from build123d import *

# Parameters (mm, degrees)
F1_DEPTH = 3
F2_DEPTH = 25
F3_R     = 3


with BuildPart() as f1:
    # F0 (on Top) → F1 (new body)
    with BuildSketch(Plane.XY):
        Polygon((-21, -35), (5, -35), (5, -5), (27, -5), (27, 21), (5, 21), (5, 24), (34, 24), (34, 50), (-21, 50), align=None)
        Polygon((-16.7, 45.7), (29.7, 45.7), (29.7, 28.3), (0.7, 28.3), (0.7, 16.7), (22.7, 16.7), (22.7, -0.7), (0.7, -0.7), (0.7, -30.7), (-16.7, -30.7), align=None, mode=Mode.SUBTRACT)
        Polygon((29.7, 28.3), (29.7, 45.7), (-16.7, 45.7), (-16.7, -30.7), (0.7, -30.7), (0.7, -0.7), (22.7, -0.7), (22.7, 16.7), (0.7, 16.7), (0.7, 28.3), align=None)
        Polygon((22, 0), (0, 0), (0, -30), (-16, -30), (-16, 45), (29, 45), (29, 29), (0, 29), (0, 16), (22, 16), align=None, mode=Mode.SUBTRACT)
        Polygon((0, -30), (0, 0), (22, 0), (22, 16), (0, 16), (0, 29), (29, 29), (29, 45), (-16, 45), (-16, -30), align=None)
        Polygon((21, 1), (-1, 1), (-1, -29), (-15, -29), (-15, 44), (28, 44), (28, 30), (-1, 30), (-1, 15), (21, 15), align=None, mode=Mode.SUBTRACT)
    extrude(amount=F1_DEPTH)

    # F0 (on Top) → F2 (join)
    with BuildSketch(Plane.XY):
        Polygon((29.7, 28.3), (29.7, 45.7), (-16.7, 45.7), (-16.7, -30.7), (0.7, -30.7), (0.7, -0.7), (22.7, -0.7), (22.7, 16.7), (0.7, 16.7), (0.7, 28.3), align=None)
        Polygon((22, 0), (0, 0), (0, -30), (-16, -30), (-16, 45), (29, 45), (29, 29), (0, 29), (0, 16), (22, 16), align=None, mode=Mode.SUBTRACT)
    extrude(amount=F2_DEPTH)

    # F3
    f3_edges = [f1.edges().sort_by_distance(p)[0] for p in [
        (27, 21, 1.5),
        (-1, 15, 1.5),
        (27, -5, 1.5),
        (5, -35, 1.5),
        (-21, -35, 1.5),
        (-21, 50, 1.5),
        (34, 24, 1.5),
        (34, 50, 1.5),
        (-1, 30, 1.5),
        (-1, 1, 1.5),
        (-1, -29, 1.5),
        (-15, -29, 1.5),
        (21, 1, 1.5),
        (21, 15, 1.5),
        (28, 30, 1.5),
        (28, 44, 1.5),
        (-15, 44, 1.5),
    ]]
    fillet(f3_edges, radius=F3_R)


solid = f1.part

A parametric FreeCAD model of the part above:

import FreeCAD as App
import Part
import Sketcher

V = App.Vector


def edges_at(feature, points):
    """Names of the edges that pass closest to the given points."""
    edges = feature.Shape.Edges
    near = lambda p: min(range(len(edges)), key=lambda i: edges[i].distToShape(Part.Vertex(*p))[0])
    return sorted({f"Edge{near(p) + 1}" for p in points})

doc = App.newDocument("Part")
body = doc.addObject("PartDesign::Body", "Body")

sketch1 = body.newObject("Sketcher::SketchObject", "Sketch")
sketch1.AttachmentSupport = (doc.getObject("XY_Plane"), [""])
sketch1.MapMode = "FlatFace"
sketch1.addGeometry(Part.LineSegment(V(-21, -35, 0), V(5, -35, 0)), False)
sketch1.addGeometry(Part.LineSegment(V(5, -35, 0), V(5, -5, 0)), False)
sketch1.addGeometry(Part.LineSegment(V(5, -5, 0), V(27, -5, 0)), False)
sketch1.addGeometry(Part.LineSegment(V(27, -5, 0), V(27, 21, 0)), False)
sketch1.addGeometry(Part.LineSegment(V(27, 21, 0), V(5, 21, 0)), False)
sketch1.addGeometry(Part.LineSegment(V(5, 21, 0), V(5, 24, 0)), False)
sketch1.addGeometry(Part.LineSegment(V(5, 24, 0), V(34, 24, 0)), False)
sketch1.addGeometry(Part.LineSegment(V(34, 24, 0), V(34, 50, 0)), False)
sketch1.addGeometry(Part.LineSegment(V(34, 50, 0), V(-21, 50, 0)), False)
sketch1.addGeometry(Part.LineSegment(V(-21, 50, 0), V(-21, -35, 0)), False)
sketch1.addGeometry(Part.LineSegment(V(21, 15, 0), V(21, 1, 0)), False)
sketch1.addGeometry(Part.LineSegment(V(21, 1, 0), V(-1, 1, 0)), False)
sketch1.addGeometry(Part.LineSegment(V(-1, 1, 0), V(-1, -29, 0)), False)
sketch1.addGeometry(Part.LineSegment(V(-1, -29, 0), V(-15, -29, 0)), False)
sketch1.addGeometry(Part.LineSegment(V(-15, -29, 0), V(-15, 44, 0)), False)
sketch1.addGeometry(Part.LineSegment(V(-15, 44, 0), V(28, 44, 0)), False)
sketch1.addGeometry(Part.LineSegment(V(28, 44, 0), V(28, 30, 0)), False)
sketch1.addGeometry(Part.LineSegment(V(28, 30, 0), V(-1, 30, 0)), False)
sketch1.addGeometry(Part.LineSegment(V(-1, 30, 0), V(-1, 15, 0)), False)
sketch1.addGeometry(Part.LineSegment(V(-1, 15, 0), V(21, 15, 0)), False)
sketch1.addConstraint(Sketcher.Constraint("Coincident", 0, 2, 1, 1))
sketch1.addConstraint(Sketcher.Constraint("Coincident", 1, 2, 2, 1))
sketch1.addConstraint(Sketcher.Constraint("Coincident", 2, 2, 3, 1))
sketch1.addConstraint(Sketcher.Constraint("Coincident", 3, 2, 4, 1))
sketch1.addConstraint(Sketcher.Constraint("Coincident", 4, 2, 5, 1))
sketch1.addConstraint(Sketcher.Constraint("Coincident", 5, 2, 6, 1))
sketch1.addConstraint(Sketcher.Constraint("Coincident", 6, 2, 7, 1))
sketch1.addConstraint(Sketcher.Constraint("Coincident", 7, 2, 8, 1))
sketch1.addConstraint(Sketcher.Constraint("Coincident", 8, 2, 9, 1))
sketch1.addConstraint(Sketcher.Constraint("Coincident", 9, 2, 0, 1))
sketch1.addConstraint(Sketcher.Constraint("Coincident", 10, 2, 11, 1))
sketch1.addConstraint(Sketcher.Constraint("Coincident", 11, 2, 12, 1))
sketch1.addConstraint(Sketcher.Constraint("Coincident", 12, 2, 13, 1))
sketch1.addConstraint(Sketcher.Constraint("Coincident", 13, 2, 14, 1))
sketch1.addConstraint(Sketcher.Constraint("Coincident", 14, 2, 15, 1))
sketch1.addConstraint(Sketcher.Constraint("Coincident", 15, 2, 16, 1))
sketch1.addConstraint(Sketcher.Constraint("Coincident", 16, 2, 17, 1))
sketch1.addConstraint(Sketcher.Constraint("Coincident", 17, 2, 18, 1))
sketch1.addConstraint(Sketcher.Constraint("Coincident", 18, 2, 19, 1))
sketch1.addConstraint(Sketcher.Constraint("Coincident", 19, 2, 10, 1))
sketch1.addConstraint(Sketcher.Constraint("Horizontal", 0))
sketch1.addConstraint(Sketcher.Constraint("Vertical", 1))
sketch1.addConstraint(Sketcher.Constraint("Horizontal", 2))
sketch1.addConstraint(Sketcher.Constraint("Vertical", 3))
sketch1.addConstraint(Sketcher.Constraint("Horizontal", 4))
sketch1.addConstraint(Sketcher.Constraint("Vertical", 5))
sketch1.addConstraint(Sketcher.Constraint("Horizontal", 6))
sketch1.addConstraint(Sketcher.Constraint("Vertical", 7))
sketch1.addConstraint(Sketcher.Constraint("Horizontal", 8))
sketch1.addConstraint(Sketcher.Constraint("Vertical", 9))
sketch1.addConstraint(Sketcher.Constraint("Vertical", 10))
sketch1.addConstraint(Sketcher.Constraint("Horizontal", 11))
sketch1.addConstraint(Sketcher.Constraint("Vertical", 12))
sketch1.addConstraint(Sketcher.Constraint("Horizontal", 13))
sketch1.addConstraint(Sketcher.Constraint("Vertical", 14))
sketch1.addConstraint(Sketcher.Constraint("Horizontal", 15))
sketch1.addConstraint(Sketcher.Constraint("Vertical", 16))
sketch1.addConstraint(Sketcher.Constraint("Horizontal", 17))
sketch1.addConstraint(Sketcher.Constraint("Vertical", 18))
sketch1.addConstraint(Sketcher.Constraint("Horizontal", 19))
sketch1.addConstraint(Sketcher.Constraint("Vertical", 1, 2, 4, 2))
sketch1.addConstraint(Sketcher.Constraint("Vertical", 12, 2, 17, 2))
sketch1.addConstraint(Sketcher.Constraint("Equal", 4, 11))
sketch1.addConstraint(Sketcher.Constraint("Equal", 6, 17))
sketch1.addConstraint(Sketcher.Constraint("Equal", 0, 3))
sketch1.addConstraint(Sketcher.Constraint("Equal", 3, 7))
sketch1.addConstraint(Sketcher.Constraint("Equal", 13, 10))
sketch1.addConstraint(Sketcher.Constraint("Equal", 1, 12))
sketch1.addConstraint(Sketcher.Constraint("Equal", 10, 16))
sketch1.addConstraint(Sketcher.Constraint("DistanceX", 0, 1, 0, 2, 26.0))
sketch1.addConstraint(Sketcher.Constraint("DistanceX", 2, 1, 2, 2, 22.0))
sketch1.addConstraint(Sketcher.Constraint("DistanceX", 6, 1, 6, 2, 29.0))
sketch1.addConstraint(Sketcher.Constraint("DistanceX", 13, 2, 13, 1, 14.0))
sketch1.addConstraint(Sketcher.Constraint("DistanceY", 1, 1, 1, 2, 30.0))
sketch1.addConstraint(Sketcher.Constraint("DistanceY", 5, 1, 5, 2, 3.0))
sketch1.addConstraint(Sketcher.Constraint("DistanceY", 14, 1, 14, 2, 73.0))
sketch1.addConstraint(Sketcher.Constraint("DistanceX", -1, 1, 0, 2, 5.0))
sketch1.addConstraint(Sketcher.Constraint("DistanceY", 0, 2, -1, 1, 35.0))
sketch1.addConstraint(Sketcher.Constraint("DistanceX", -1, 1, 10, 2, 21.0))
sketch1.addConstraint(Sketcher.Constraint("DistanceY", -1, 1, 10, 2, 1.0))
pad1 = body.newObject("PartDesign::Pad", "Pad")
pad1.Profile = sketch1
pad1.Length = 3

sketch2 = body.newObject("Sketcher::SketchObject", "Sketch001")
sketch2.AttachmentSupport = (doc.getObject("XY_Plane"), [""])
sketch2.MapMode = "FlatFace"
sketch2.addGeometry(Part.LineSegment(V(29.7, 28.3, 0), V(29.7, 45.7, 0)), False)
sketch2.addGeometry(Part.LineSegment(V(29.7, 45.7, 0), V(-16.7, 45.7, 0)), False)
sketch2.addGeometry(Part.LineSegment(V(-16.7, 45.7, 0), V(-16.7, -30.7, 0)), False)
sketch2.addGeometry(Part.LineSegment(V(-16.7, -30.7, 0), V(0.7, -30.7, 0)), False)
sketch2.addGeometry(Part.LineSegment(V(0.7, -30.7, 0), V(0.7, -0.7, 0)), False)
sketch2.addGeometry(Part.LineSegment(V(0.7, -0.7, 0), V(22.7, -0.7, 0)), False)
sketch2.addGeometry(Part.LineSegment(V(22.7, -0.7, 0), V(22.7, 16.7, 0)), False)
sketch2.addGeometry(Part.LineSegment(V(22.7, 16.7, 0), V(0.7, 16.7, 0)), False)
sketch2.addGeometry(Part.LineSegment(V(0.7, 16.7, 0), V(0.7, 28.3, 0)), False)
sketch2.addGeometry(Part.LineSegment(V(0.7, 28.3, 0), V(29.7, 28.3, 0)), False)
sketch2.addGeometry(Part.LineSegment(V(22, 16, 0), V(22, 0, 0)), False)
sketch2.addGeometry(Part.LineSegment(V(22, 0, 0), V(0, 0, 0)), False)
sketch2.addGeometry(Part.LineSegment(V(0, 0, 0), V(0, -30, 0)), False)
sketch2.addGeometry(Part.LineSegment(V(0, -30, 0), V(-16, -30, 0)), False)
sketch2.addGeometry(Part.LineSegment(V(-16, -30, 0), V(-16, 45, 0)), False)
sketch2.addGeometry(Part.LineSegment(V(-16, 45, 0), V(29, 45, 0)), False)
sketch2.addGeometry(Part.LineSegment(V(29, 45, 0), V(29, 29, 0)), False)
sketch2.addGeometry(Part.LineSegment(V(29, 29, 0), V(0, 29, 0)), False)
sketch2.addGeometry(Part.LineSegment(V(0, 29, 0), V(0, 16, 0)), False)
sketch2.addGeometry(Part.LineSegment(V(0, 16, 0), V(22, 16, 0)), False)
sketch2.addConstraint(Sketcher.Constraint("Coincident", 0, 2, 1, 1))
sketch2.addConstraint(Sketcher.Constraint("Coincident", 1, 2, 2, 1))
sketch2.addConstraint(Sketcher.Constraint("Coincident", 2, 2, 3, 1))
sketch2.addConstraint(Sketcher.Constraint("Coincident", 3, 2, 4, 1))
sketch2.addConstraint(Sketcher.Constraint("Coincident", 4, 2, 5, 1))
sketch2.addConstraint(Sketcher.Constraint("Coincident", 5, 2, 6, 1))
sketch2.addConstraint(Sketcher.Constraint("Coincident", 6, 2, 7, 1))
sketch2.addConstraint(Sketcher.Constraint("Coincident", 7, 2, 8, 1))
sketch2.addConstraint(Sketcher.Constraint("Coincident", 8, 2, 9, 1))
sketch2.addConstraint(Sketcher.Constraint("Coincident", 9, 2, 0, 1))
sketch2.addConstraint(Sketcher.Constraint("Coincident", 10, 2, 11, 1))
sketch2.addConstraint(Sketcher.Constraint("Coincident", 11, 2, 12, 1))
sketch2.addConstraint(Sketcher.Constraint("Coincident", 12, 2, 13, 1))
sketch2.addConstraint(Sketcher.Constraint("Coincident", 13, 2, 14, 1))
sketch2.addConstraint(Sketcher.Constraint("Coincident", 14, 2, 15, 1))
sketch2.addConstraint(Sketcher.Constraint("Coincident", 15, 2, 16, 1))
sketch2.addConstraint(Sketcher.Constraint("Coincident", 16, 2, 17, 1))
sketch2.addConstraint(Sketcher.Constraint("Coincident", 17, 2, 18, 1))
sketch2.addConstraint(Sketcher.Constraint("Coincident", 18, 2, 19, 1))
sketch2.addConstraint(Sketcher.Constraint("Coincident", 19, 2, 10, 1))
sketch2.addConstraint(Sketcher.Constraint("Vertical", 0))
sketch2.addConstraint(Sketcher.Constraint("Horizontal", 1))
sketch2.addConstraint(Sketcher.Constraint("Vertical", 2))
sketch2.addConstraint(Sketcher.Constraint("Horizontal", 3))
sketch2.addConstraint(Sketcher.Constraint("Vertical", 4))
sketch2.addConstraint(Sketcher.Constraint("Horizontal", 5))
sketch2.addConstraint(Sketcher.Constraint("Vertical", 6))
sketch2.addConstraint(Sketcher.Constraint("Horizontal", 7))
sketch2.addConstraint(Sketcher.Constraint("Vertical", 8))
sketch2.addConstraint(Sketcher.Constraint("Horizontal", 9))
sketch2.addConstraint(Sketcher.Constraint("Vertical", 10))
sketch2.addConstraint(Sketcher.Constraint("Horizontal", 11))
sketch2.addConstraint(Sketcher.Constraint("Vertical", 12))
sketch2.addConstraint(Sketcher.Constraint("Horizontal", 13))
sketch2.addConstraint(Sketcher.Constraint("Vertical", 14))
sketch2.addConstraint(Sketcher.Constraint("Horizontal", 15))
sketch2.addConstraint(Sketcher.Constraint("Vertical", 16))
sketch2.addConstraint(Sketcher.Constraint("Horizontal", 17))
sketch2.addConstraint(Sketcher.Constraint("Vertical", 18))
sketch2.addConstraint(Sketcher.Constraint("Horizontal", 19))
sketch2.addConstraint(Sketcher.Constraint("Coincident", 11, 2, -1, 1))
sketch2.addConstraint(Sketcher.Constraint("PointOnObject", 17, 2, -2))
sketch2.addConstraint(Sketcher.Constraint("Vertical", 4, 2, 7, 2))
sketch2.addConstraint(Sketcher.Constraint("Equal", 7, 11))
sketch2.addConstraint(Sketcher.Constraint("Equal", 9, 17))
sketch2.addConstraint(Sketcher.Constraint("Equal", 3, 0))
sketch2.addConstraint(Sketcher.Constraint("Equal", 0, 6))
sketch2.addConstraint(Sketcher.Constraint("Equal", 13, 10))
sketch2.addConstraint(Sketcher.Constraint("Equal", 4, 12))
sketch2.addConstraint(Sketcher.Constraint("Equal", 10, 16))
sketch2.addConstraint(Sketcher.Constraint("DistanceX", 5, 1, 5, 2, 22.0))
sketch2.addConstraint(Sketcher.Constraint("DistanceX", 9, 1, 9, 2, 29.0))
sketch2.addConstraint(Sketcher.Constraint("DistanceX", 13, 2, 13, 1, 16.0))
sketch2.addConstraint(Sketcher.Constraint("DistanceY", 4, 1, 4, 2, 30.0))
sketch2.addConstraint(Sketcher.Constraint("DistanceY", 14, 1, 14, 2, 75.0))
sketch2.addConstraint(Sketcher.Constraint("DistanceX", 1, 2, 1, 1, 46.4))
sketch2.addConstraint(Sketcher.Constraint("DistanceY", 2, 2, 2, 1, 76.4))
sketch2.addConstraint(Sketcher.Constraint("DistanceX", -1, 1, 0, 2, 29.7))
sketch2.addConstraint(Sketcher.Constraint("DistanceY", -1, 1, 0, 2, 45.7))
pad2 = body.newObject("PartDesign::Pad", "Pad001")
pad2.Profile = sketch2
pad2.Length = 25
doc.recompute()

fillet = body.newObject("PartDesign::Fillet", "Fillet")
fillet.Base = (pad2, edges_at(pad2, [
    (27, 21, 1.5),
    (-1, 15, 1.5),
    (27, -5, 1.5),
    (5, -35, 1.5),
    (-21, -35, 1.5),
    (-21, 50, 1.5),
    (34, 24, 1.5),
    (34, 50, 1.5),
    (-1, 30, 1.5),
    (-1, 1, 1.5),
    (-1, -29, 1.5),
    (-15, -29, 1.5),
    (21, 1, 1.5),
    (21, 15, 1.5),
    (28, 30, 1.5),
    (28, 44, 1.5),
    (-15, 44, 1.5),
]))
fillet.Radius = 3

doc.recompute()
